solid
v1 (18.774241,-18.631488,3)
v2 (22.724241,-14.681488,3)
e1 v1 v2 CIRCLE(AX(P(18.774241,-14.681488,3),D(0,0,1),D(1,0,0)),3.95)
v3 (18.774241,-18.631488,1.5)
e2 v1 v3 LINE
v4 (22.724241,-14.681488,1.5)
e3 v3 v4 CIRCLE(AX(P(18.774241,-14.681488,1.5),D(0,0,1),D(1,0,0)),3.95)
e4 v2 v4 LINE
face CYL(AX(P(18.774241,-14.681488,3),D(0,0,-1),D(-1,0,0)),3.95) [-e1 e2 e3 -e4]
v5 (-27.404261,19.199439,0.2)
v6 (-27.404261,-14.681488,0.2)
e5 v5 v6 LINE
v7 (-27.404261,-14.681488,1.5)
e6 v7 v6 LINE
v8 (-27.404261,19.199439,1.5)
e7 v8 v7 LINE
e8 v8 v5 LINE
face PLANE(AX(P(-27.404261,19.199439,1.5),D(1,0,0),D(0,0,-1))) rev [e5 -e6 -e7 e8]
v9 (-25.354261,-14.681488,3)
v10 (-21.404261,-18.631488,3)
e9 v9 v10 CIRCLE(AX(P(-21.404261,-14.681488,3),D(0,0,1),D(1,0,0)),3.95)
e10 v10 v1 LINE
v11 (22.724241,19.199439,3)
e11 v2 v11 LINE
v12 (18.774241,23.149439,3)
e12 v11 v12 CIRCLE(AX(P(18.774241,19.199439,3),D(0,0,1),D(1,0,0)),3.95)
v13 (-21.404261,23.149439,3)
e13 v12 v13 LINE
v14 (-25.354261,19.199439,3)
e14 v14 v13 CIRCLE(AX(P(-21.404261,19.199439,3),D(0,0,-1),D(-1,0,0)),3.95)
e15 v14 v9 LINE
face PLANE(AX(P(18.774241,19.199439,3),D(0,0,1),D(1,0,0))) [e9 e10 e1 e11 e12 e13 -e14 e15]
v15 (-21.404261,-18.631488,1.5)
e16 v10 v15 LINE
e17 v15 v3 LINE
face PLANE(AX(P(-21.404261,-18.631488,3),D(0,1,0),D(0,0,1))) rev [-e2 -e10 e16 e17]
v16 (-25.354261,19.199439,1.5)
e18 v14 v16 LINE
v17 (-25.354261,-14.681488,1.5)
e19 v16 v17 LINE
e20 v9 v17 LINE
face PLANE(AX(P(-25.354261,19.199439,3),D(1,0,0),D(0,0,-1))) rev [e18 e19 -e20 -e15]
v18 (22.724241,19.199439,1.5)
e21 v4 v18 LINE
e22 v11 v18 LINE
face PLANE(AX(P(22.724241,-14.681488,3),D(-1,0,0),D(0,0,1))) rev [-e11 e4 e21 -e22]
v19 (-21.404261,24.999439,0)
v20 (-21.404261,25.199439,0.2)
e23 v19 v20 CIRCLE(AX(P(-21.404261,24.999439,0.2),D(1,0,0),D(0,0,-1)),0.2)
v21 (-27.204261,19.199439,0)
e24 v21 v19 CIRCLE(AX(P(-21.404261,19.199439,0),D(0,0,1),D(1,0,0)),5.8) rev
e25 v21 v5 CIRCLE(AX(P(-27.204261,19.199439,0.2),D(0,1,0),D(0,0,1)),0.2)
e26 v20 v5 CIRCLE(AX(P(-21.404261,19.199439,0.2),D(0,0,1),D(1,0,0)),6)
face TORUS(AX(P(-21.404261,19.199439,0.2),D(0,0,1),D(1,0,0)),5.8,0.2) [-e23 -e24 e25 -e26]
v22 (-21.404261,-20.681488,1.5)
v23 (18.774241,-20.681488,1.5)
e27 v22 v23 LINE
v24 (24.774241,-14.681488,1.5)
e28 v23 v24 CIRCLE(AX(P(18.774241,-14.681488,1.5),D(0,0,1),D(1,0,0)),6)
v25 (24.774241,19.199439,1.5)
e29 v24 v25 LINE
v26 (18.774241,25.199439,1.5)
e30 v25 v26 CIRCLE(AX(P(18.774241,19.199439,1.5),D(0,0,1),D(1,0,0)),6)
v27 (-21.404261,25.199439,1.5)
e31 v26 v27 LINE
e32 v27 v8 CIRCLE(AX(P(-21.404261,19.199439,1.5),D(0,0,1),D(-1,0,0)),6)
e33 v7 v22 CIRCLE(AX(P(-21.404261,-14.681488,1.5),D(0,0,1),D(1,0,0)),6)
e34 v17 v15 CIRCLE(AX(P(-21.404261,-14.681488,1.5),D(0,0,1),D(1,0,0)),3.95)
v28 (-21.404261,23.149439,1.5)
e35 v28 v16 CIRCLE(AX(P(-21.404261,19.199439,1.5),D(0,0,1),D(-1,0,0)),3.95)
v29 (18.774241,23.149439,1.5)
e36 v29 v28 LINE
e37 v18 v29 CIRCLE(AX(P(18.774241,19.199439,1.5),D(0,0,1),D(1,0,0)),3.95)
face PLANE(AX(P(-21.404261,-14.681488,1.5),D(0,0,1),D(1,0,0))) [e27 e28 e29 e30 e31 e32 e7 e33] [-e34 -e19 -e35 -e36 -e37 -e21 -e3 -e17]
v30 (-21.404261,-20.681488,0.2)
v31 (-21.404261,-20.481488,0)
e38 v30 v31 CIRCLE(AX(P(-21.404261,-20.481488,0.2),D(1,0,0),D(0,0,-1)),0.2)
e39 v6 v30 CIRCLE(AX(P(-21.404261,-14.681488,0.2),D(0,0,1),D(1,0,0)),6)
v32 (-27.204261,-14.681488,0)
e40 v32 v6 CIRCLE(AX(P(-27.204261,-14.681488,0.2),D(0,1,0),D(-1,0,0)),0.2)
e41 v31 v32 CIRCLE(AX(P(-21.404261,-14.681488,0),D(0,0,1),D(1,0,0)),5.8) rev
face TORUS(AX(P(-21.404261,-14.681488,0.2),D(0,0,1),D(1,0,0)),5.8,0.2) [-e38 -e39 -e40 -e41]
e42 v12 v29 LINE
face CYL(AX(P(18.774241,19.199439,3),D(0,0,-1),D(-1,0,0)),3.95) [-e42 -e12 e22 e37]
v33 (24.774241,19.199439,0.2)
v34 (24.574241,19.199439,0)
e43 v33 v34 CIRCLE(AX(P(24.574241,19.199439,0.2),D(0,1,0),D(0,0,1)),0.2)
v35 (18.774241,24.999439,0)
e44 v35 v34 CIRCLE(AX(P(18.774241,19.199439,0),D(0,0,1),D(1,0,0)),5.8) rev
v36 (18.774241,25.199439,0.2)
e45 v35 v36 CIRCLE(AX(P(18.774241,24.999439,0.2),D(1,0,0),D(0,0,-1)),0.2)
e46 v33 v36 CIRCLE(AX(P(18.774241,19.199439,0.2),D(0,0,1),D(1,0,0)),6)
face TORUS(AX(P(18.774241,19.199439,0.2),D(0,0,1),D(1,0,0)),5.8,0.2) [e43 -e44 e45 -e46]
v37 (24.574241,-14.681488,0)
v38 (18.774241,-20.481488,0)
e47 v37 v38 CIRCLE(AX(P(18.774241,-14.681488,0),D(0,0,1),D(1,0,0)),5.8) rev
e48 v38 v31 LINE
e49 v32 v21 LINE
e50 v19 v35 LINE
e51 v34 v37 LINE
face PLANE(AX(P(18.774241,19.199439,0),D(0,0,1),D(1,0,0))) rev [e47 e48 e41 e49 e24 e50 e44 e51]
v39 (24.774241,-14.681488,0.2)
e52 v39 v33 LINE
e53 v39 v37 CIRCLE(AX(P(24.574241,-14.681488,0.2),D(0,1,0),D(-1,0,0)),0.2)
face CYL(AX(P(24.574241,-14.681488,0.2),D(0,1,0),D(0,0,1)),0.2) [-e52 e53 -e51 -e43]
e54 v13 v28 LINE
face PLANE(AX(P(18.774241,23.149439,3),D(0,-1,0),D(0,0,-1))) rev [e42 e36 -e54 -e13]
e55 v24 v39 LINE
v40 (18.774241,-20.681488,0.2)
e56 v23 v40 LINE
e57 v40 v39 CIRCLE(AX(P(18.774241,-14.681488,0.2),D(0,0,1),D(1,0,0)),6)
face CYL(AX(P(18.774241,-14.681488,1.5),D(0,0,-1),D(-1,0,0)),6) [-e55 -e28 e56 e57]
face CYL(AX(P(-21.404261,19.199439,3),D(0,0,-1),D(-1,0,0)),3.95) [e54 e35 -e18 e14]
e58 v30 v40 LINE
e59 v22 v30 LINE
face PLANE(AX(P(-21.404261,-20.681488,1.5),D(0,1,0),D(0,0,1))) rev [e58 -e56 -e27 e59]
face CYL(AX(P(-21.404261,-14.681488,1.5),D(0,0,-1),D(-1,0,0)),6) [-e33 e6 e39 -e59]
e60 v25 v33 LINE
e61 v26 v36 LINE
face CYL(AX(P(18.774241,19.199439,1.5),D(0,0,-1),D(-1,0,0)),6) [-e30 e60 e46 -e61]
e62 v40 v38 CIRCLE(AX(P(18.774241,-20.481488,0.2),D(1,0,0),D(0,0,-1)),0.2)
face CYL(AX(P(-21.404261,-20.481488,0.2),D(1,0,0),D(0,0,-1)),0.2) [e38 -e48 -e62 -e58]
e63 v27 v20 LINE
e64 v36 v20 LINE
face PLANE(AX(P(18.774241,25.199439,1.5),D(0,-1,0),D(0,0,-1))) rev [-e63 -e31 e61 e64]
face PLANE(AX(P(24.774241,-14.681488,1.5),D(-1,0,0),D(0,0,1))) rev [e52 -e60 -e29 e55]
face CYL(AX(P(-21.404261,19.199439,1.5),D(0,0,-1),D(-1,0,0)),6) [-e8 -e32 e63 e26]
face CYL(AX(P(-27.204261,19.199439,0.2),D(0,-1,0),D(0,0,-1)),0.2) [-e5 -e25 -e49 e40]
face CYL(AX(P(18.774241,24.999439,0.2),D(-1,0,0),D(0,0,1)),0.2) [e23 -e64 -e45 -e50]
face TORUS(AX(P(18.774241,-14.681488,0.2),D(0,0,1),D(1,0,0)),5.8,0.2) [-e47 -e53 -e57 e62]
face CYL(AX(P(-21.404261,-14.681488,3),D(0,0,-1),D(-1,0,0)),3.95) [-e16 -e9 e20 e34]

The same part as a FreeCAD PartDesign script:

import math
import FreeCAD as App
import Part
import Sketcher
from FreeCAD import Vector
Q = App.Units.Quantity


def edges_at(feature, points):
    """Names of the edges that pass closest to the given points."""
    edges = feature.Shape.Edges
    near = lambda p: min(range(len(edges)), key=lambda i: edges[i].distToShape(Part.Vertex(*p))[0])
    return sorted({f"Edge{near(p) + 1}" for p in points})

doc = App.newDocument("Part")
body = doc.addObject("PartDesign::Body", "Body")

# Sketch on XY plane
sketch1 = doc.addObject("Sketcher::SketchObject", "Sketch")
body.addObject(sketch1)
sketch1.AttachmentSupport = (doc.XY_Plane, [""])
sketch1.MapMode = "FlatFace"
sketch1.addGeometry([
    Part.LineSegment(Vector(-25.4, 19.2, 0), Vector(-25.4, -14.7, 0)),  # 0
    Part.ArcOfCircle(Part.Circle(Vector(-21.4, -14.7, 0), Vector(0, 0, 1), 4), math.radians(-180), math.radians(-90)),  # 1
    Part.LineSegment(Vector(-21.4, -18.6, 0), Vector(18.8, -18.6, 0)),  # 2
    Part.ArcOfCircle(Part.Circle(Vector(18.8, -14.7, 0), Vector(0, 0, 1), 4), math.radians(-90), math.radians(0)),  # 3
    Part.LineSegment(Vector(22.7, -14.7, 0), Vector(22.7, 19.2, 0)),  # 4
    Part.ArcOfCircle(Part.Circle(Vector(18.8, 19.2, 0), Vector(0, 0, 1), 4), math.radians(0), math.radians(90)),  # 5
    Part.LineSegment(Vector(18.8, 23.1, 0), Vector(-21.4, 23.1, 0)),  # 6
    Part.ArcOfCircle(Part.Circle(Vector(-21.4, 19.2, 0), Vector(0, 0, 1), 3.9), math.radians(90), math.radians(180)),  # 7
], False)
sketch1.addConstraint([
    Sketcher.Constraint("Tangent", 0, 2, 1, 1),
    Sketcher.Constraint("Tangent", 1, 2, 2, 1),
    Sketcher.Constraint("Tangent", 2, 2, 3, 1),
    Sketcher.Constraint("Tangent", 3, 2, 4, 1),
    Sketcher.Constraint("Tangent", 4, 2, 5, 1),
    Sketcher.Constraint("Tangent", 5, 2, 6, 1),
    Sketcher.Constraint("Tangent", 6, 2, 7, 1),
    Sketcher.Constraint("Tangent", 7, 2, 0, 1),
    Sketcher.Constraint("Vertical", 0),
    Sketcher.Constraint("Horizontal", 2),
    Sketcher.Constraint("Vertical", 4),
    Sketcher.Constraint("Horizontal", 6),
    Sketcher.Constraint("Equal", 1, 3),
    Sketcher.Constraint("Equal", 3, 5),
    Sketcher.Constraint("Equal", 5, 7),
    Sketcher.Constraint("Radius", 1, Q("3.95 mm")),
    Sketcher.Constraint("DistanceX", 2, 1, 2, 2, Q("40.178502 mm")),
    Sketcher.Constraint("DistanceY", 0, 2, 0, 1, Q("33.880927 mm")),
    Sketcher.Constraint("DistanceX", 1, 3, -1, 1, Q("21.404261 mm")),
    Sketcher.Constraint("DistanceY", 1, 3, -1, 1, Q("14.681488 mm")),
])
pad1 = doc.addObject("PartDesign::Pad", "Pad")
body.addObject(pad1)
pad1.Profile = sketch1
pad1.Length = 3

# Sketch on XY plane
sketch2 = doc.addObject("Sketcher::SketchObject", "Sketch001")
body.addObject(sketch2)
sketch2.AttachmentSupport = (doc.XY_Plane, [""])
sketch2.MapMode = "FlatFace"
sketch2.addGeometry([
    Part.LineSegment(Vector(-27.4, 19.2, 0), Vector(-27.4, -14.7, 0)),  # 0
    Part.ArcOfCircle(Part.Circle(Vector(-21.4, -14.7, 0), Vector(0, 0, 1), 6), math.radians(180), math.radians(270)),  # 1
    Part.LineSegment(Vector(-21.4, -20.7, 0), Vector(18.8, -20.7, 0)),  # 2
    Part.ArcOfCircle(Part.Circle(Vector(18.8, -14.7, 0), Vector(0, 0, 1), 6), math.radians(-90), math.radians(0)),  # 3
    Part.LineSegment(Vector(24.8, -14.7, 0), Vector(24.8, 19.2, 0)),  # 4
    Part.ArcOfCircle(Part.Circle(Vector(18.8, 19.2, 0), Vector(0, 0, 1), 6), math.radians(0), math.radians(90)),  # 5
    Part.LineSegment(Vector(18.8, 25.2, 0), Vector(-21.4, 25.2, 0)),  # 6
    Part.ArcOfCircle(Part.Circle(Vector(-21.4, 19.2, 0), Vector(0, 0, 1), 6), math.radians(90), math.radians(180)),  # 7
    Part.LineSegment(Vector(-25.4, -14.7, 0), Vector(-25.4, 19.2, 0)),  # 8
    Part.ArcOfCircle(Part.Circle(Vector(-21.4, 19.2, 0), Vector(0, 0, 1), 3.9), math.radians(90), math.radians(180)),  # 9
    Part.LineSegment(Vector(-21.4, 23.1, 0), Vector(18.8, 23.1, 0)),  # 10
    Part.ArcOfCircle(Part.Circle(Vector(18.8, 19.2, 0), Vector(0, 0, 1), 4), math.radians(0), math.radians(90)),  # 11
    Part.LineSegment(Vector(22.7, 19.2, 0), Vector(22.7, -14.7, 0)),  # 12
    Part.ArcOfCircle(Part.Circle(Vector(18.8, -14.7, 0), Vector(0, 0, 1), 4), math.radians(-90), math.radians(0)),  # 13
    Part.LineSegment(Vector(18.8, -18.6, 0), Vector(-21.4, -18.6, 0)),  # 14
    Part.ArcOfCircle(Part.Circle(Vector(-21.4, -14.7, 0), Vector(0, 0, 1), 4), math.radians(-180), math.radians(-90)),  # 15
], False)
sketch2.addConstraint([
    Sketcher.Constraint("Tangent", 0, 2, 1, 1),
    Sketcher.Constraint("Tangent", 1, 2, 2, 1),
    Sketcher.Constraint("Tangent", 2, 2, 3, 1),
    Sketcher.Constraint("Tangent", 3, 2, 4, 1),
    Sketcher.Constraint("Tangent", 4, 2, 5, 1),
    Sketcher.Constraint("Tangent", 5, 2, 6, 1),
    Sketcher.Constraint("Tangent", 6, 2, 7, 1),
    Sketcher.Constraint("Tangent", 7, 2, 0, 1),
    Sketcher.Constraint("Tangent", 8, 2, 9, 2),
    Sketcher.Constraint("Tangent", 9, 1, 10, 1),
    Sketcher.Constraint("Tangent", 10, 2, 11, 2),
    Sketcher.Constraint("Tangent", 11, 1, 12, 1),
    Sketcher.Constraint("Tangent", 12, 2, 13, 2),
    Sketcher.Constraint("Tangent", 13, 1, 14, 1),
    Sketcher.Constraint("Tangent", 14, 2, 15, 2),
    Sketcher.Constraint("Tangent", 15, 1, 8, 1),
    Sketcher.Constraint("Vertical", 0),
    Sketcher.Constraint("Horizontal", 2),
    Sketcher.Constraint("Vertical", 4),
    Sketcher.Constraint("Horizontal", 6),
    Sketcher.Constraint("Vertical", 8),
    Sketcher.Constraint("Horizontal", 10),
    Sketcher.Constraint("Vertical", 12),
    Sketcher.Constraint("Horizontal", 14),
    Sketcher.Constraint("Coincident", 9, 3, 7, 3),
    Sketcher.Constraint("Coincident", 11, 3, 5, 3),
    Sketcher.Constraint("Coincident", 13, 3, 3, 3),
    Sketcher.Constraint("Equal", 1, 3),
    Sketcher.Constraint("Equal", 3, 5),
    Sketcher.Constraint("Equal", 5, 7),
    Sketcher.Constraint("Equal", 13, 15),
    Sketcher.Constraint("Radius", 1, Q("6 mm")),
    Sketcher.Constraint("Radius", 9, Q("3.95 mm")),
    Sketcher.Constraint("DistanceX", 2, 1, 2, 2, Q("40.178502 mm")),
    Sketcher.Constraint("DistanceY", 0, 2, 0, 1, Q("33.880927 mm")),
    Sketcher.Constraint("DistanceX", 1, 3, -1, 1, Q("21.404261 mm")),
    Sketcher.Constraint("DistanceY", 1, 3, -1, 1, Q("14.681488 mm")),
])
pad2 = doc.addObject("PartDesign::Pad", "Pad001")
body.addObject(pad2)
pad2.Profile = sketch2
pad2.Length = 1.5
doc.recompute()

fillet = doc.addObject("PartDesign::Fillet", "Fillet")
body.addObject(fillet)
fillet.Base = (pad2, edges_at(pad2, [
    (-25.647, -18.924, 0),
    (-1.315, -20.681, 0),
    (23.017, -18.924, 0),
    (24.774, 2.259, 0),
    (23.017, 23.442, 0),
    (-1.315, 25.199, 0),
    (-25.647, 23.442, 0),
    (-27.404, 2.259, 0),
]))
fillet.Radius = 0.2

doc.recompute()
